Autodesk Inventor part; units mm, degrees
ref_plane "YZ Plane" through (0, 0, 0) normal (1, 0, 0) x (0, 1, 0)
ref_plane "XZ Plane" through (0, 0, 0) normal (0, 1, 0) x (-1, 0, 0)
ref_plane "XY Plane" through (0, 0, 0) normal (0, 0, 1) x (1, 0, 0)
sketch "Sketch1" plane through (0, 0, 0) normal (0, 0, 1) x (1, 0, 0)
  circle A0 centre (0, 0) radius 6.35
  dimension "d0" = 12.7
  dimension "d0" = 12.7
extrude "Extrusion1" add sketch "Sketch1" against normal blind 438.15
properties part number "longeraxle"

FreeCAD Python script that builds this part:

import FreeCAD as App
import Part
import Sketcher
from FreeCAD import Vector
Q = App.Units.Quantity

doc = App.newDocument("Part")
body = doc.addObject("PartDesign::Body", "Body")

sketch1 = body.newObject("Sketcher::SketchObject", "Sketch")
sketch1.AttachmentSupport = (doc.getObject("XY_Plane"), [""])
sketch1.MapMode = "FlatFace"
sketch1.addGeometry(Part.Circle(Vector(0, 0, 0), Vector(0, 0, 1), 6), False)
sketch1.addConstraint(Sketcher.Constraint("Coincident", 0, 3, -1, 1))
sketch1.addConstraint(Sketcher.Constraint("Diameter", 0, Q("0.5 in")))
pad1 = body.newObject("PartDesign::Pad", "Pad")
pad1.Profile = sketch1
pad1.Length = Q("17.25 in")
pad1.Reversed = True

doc.recompute()
